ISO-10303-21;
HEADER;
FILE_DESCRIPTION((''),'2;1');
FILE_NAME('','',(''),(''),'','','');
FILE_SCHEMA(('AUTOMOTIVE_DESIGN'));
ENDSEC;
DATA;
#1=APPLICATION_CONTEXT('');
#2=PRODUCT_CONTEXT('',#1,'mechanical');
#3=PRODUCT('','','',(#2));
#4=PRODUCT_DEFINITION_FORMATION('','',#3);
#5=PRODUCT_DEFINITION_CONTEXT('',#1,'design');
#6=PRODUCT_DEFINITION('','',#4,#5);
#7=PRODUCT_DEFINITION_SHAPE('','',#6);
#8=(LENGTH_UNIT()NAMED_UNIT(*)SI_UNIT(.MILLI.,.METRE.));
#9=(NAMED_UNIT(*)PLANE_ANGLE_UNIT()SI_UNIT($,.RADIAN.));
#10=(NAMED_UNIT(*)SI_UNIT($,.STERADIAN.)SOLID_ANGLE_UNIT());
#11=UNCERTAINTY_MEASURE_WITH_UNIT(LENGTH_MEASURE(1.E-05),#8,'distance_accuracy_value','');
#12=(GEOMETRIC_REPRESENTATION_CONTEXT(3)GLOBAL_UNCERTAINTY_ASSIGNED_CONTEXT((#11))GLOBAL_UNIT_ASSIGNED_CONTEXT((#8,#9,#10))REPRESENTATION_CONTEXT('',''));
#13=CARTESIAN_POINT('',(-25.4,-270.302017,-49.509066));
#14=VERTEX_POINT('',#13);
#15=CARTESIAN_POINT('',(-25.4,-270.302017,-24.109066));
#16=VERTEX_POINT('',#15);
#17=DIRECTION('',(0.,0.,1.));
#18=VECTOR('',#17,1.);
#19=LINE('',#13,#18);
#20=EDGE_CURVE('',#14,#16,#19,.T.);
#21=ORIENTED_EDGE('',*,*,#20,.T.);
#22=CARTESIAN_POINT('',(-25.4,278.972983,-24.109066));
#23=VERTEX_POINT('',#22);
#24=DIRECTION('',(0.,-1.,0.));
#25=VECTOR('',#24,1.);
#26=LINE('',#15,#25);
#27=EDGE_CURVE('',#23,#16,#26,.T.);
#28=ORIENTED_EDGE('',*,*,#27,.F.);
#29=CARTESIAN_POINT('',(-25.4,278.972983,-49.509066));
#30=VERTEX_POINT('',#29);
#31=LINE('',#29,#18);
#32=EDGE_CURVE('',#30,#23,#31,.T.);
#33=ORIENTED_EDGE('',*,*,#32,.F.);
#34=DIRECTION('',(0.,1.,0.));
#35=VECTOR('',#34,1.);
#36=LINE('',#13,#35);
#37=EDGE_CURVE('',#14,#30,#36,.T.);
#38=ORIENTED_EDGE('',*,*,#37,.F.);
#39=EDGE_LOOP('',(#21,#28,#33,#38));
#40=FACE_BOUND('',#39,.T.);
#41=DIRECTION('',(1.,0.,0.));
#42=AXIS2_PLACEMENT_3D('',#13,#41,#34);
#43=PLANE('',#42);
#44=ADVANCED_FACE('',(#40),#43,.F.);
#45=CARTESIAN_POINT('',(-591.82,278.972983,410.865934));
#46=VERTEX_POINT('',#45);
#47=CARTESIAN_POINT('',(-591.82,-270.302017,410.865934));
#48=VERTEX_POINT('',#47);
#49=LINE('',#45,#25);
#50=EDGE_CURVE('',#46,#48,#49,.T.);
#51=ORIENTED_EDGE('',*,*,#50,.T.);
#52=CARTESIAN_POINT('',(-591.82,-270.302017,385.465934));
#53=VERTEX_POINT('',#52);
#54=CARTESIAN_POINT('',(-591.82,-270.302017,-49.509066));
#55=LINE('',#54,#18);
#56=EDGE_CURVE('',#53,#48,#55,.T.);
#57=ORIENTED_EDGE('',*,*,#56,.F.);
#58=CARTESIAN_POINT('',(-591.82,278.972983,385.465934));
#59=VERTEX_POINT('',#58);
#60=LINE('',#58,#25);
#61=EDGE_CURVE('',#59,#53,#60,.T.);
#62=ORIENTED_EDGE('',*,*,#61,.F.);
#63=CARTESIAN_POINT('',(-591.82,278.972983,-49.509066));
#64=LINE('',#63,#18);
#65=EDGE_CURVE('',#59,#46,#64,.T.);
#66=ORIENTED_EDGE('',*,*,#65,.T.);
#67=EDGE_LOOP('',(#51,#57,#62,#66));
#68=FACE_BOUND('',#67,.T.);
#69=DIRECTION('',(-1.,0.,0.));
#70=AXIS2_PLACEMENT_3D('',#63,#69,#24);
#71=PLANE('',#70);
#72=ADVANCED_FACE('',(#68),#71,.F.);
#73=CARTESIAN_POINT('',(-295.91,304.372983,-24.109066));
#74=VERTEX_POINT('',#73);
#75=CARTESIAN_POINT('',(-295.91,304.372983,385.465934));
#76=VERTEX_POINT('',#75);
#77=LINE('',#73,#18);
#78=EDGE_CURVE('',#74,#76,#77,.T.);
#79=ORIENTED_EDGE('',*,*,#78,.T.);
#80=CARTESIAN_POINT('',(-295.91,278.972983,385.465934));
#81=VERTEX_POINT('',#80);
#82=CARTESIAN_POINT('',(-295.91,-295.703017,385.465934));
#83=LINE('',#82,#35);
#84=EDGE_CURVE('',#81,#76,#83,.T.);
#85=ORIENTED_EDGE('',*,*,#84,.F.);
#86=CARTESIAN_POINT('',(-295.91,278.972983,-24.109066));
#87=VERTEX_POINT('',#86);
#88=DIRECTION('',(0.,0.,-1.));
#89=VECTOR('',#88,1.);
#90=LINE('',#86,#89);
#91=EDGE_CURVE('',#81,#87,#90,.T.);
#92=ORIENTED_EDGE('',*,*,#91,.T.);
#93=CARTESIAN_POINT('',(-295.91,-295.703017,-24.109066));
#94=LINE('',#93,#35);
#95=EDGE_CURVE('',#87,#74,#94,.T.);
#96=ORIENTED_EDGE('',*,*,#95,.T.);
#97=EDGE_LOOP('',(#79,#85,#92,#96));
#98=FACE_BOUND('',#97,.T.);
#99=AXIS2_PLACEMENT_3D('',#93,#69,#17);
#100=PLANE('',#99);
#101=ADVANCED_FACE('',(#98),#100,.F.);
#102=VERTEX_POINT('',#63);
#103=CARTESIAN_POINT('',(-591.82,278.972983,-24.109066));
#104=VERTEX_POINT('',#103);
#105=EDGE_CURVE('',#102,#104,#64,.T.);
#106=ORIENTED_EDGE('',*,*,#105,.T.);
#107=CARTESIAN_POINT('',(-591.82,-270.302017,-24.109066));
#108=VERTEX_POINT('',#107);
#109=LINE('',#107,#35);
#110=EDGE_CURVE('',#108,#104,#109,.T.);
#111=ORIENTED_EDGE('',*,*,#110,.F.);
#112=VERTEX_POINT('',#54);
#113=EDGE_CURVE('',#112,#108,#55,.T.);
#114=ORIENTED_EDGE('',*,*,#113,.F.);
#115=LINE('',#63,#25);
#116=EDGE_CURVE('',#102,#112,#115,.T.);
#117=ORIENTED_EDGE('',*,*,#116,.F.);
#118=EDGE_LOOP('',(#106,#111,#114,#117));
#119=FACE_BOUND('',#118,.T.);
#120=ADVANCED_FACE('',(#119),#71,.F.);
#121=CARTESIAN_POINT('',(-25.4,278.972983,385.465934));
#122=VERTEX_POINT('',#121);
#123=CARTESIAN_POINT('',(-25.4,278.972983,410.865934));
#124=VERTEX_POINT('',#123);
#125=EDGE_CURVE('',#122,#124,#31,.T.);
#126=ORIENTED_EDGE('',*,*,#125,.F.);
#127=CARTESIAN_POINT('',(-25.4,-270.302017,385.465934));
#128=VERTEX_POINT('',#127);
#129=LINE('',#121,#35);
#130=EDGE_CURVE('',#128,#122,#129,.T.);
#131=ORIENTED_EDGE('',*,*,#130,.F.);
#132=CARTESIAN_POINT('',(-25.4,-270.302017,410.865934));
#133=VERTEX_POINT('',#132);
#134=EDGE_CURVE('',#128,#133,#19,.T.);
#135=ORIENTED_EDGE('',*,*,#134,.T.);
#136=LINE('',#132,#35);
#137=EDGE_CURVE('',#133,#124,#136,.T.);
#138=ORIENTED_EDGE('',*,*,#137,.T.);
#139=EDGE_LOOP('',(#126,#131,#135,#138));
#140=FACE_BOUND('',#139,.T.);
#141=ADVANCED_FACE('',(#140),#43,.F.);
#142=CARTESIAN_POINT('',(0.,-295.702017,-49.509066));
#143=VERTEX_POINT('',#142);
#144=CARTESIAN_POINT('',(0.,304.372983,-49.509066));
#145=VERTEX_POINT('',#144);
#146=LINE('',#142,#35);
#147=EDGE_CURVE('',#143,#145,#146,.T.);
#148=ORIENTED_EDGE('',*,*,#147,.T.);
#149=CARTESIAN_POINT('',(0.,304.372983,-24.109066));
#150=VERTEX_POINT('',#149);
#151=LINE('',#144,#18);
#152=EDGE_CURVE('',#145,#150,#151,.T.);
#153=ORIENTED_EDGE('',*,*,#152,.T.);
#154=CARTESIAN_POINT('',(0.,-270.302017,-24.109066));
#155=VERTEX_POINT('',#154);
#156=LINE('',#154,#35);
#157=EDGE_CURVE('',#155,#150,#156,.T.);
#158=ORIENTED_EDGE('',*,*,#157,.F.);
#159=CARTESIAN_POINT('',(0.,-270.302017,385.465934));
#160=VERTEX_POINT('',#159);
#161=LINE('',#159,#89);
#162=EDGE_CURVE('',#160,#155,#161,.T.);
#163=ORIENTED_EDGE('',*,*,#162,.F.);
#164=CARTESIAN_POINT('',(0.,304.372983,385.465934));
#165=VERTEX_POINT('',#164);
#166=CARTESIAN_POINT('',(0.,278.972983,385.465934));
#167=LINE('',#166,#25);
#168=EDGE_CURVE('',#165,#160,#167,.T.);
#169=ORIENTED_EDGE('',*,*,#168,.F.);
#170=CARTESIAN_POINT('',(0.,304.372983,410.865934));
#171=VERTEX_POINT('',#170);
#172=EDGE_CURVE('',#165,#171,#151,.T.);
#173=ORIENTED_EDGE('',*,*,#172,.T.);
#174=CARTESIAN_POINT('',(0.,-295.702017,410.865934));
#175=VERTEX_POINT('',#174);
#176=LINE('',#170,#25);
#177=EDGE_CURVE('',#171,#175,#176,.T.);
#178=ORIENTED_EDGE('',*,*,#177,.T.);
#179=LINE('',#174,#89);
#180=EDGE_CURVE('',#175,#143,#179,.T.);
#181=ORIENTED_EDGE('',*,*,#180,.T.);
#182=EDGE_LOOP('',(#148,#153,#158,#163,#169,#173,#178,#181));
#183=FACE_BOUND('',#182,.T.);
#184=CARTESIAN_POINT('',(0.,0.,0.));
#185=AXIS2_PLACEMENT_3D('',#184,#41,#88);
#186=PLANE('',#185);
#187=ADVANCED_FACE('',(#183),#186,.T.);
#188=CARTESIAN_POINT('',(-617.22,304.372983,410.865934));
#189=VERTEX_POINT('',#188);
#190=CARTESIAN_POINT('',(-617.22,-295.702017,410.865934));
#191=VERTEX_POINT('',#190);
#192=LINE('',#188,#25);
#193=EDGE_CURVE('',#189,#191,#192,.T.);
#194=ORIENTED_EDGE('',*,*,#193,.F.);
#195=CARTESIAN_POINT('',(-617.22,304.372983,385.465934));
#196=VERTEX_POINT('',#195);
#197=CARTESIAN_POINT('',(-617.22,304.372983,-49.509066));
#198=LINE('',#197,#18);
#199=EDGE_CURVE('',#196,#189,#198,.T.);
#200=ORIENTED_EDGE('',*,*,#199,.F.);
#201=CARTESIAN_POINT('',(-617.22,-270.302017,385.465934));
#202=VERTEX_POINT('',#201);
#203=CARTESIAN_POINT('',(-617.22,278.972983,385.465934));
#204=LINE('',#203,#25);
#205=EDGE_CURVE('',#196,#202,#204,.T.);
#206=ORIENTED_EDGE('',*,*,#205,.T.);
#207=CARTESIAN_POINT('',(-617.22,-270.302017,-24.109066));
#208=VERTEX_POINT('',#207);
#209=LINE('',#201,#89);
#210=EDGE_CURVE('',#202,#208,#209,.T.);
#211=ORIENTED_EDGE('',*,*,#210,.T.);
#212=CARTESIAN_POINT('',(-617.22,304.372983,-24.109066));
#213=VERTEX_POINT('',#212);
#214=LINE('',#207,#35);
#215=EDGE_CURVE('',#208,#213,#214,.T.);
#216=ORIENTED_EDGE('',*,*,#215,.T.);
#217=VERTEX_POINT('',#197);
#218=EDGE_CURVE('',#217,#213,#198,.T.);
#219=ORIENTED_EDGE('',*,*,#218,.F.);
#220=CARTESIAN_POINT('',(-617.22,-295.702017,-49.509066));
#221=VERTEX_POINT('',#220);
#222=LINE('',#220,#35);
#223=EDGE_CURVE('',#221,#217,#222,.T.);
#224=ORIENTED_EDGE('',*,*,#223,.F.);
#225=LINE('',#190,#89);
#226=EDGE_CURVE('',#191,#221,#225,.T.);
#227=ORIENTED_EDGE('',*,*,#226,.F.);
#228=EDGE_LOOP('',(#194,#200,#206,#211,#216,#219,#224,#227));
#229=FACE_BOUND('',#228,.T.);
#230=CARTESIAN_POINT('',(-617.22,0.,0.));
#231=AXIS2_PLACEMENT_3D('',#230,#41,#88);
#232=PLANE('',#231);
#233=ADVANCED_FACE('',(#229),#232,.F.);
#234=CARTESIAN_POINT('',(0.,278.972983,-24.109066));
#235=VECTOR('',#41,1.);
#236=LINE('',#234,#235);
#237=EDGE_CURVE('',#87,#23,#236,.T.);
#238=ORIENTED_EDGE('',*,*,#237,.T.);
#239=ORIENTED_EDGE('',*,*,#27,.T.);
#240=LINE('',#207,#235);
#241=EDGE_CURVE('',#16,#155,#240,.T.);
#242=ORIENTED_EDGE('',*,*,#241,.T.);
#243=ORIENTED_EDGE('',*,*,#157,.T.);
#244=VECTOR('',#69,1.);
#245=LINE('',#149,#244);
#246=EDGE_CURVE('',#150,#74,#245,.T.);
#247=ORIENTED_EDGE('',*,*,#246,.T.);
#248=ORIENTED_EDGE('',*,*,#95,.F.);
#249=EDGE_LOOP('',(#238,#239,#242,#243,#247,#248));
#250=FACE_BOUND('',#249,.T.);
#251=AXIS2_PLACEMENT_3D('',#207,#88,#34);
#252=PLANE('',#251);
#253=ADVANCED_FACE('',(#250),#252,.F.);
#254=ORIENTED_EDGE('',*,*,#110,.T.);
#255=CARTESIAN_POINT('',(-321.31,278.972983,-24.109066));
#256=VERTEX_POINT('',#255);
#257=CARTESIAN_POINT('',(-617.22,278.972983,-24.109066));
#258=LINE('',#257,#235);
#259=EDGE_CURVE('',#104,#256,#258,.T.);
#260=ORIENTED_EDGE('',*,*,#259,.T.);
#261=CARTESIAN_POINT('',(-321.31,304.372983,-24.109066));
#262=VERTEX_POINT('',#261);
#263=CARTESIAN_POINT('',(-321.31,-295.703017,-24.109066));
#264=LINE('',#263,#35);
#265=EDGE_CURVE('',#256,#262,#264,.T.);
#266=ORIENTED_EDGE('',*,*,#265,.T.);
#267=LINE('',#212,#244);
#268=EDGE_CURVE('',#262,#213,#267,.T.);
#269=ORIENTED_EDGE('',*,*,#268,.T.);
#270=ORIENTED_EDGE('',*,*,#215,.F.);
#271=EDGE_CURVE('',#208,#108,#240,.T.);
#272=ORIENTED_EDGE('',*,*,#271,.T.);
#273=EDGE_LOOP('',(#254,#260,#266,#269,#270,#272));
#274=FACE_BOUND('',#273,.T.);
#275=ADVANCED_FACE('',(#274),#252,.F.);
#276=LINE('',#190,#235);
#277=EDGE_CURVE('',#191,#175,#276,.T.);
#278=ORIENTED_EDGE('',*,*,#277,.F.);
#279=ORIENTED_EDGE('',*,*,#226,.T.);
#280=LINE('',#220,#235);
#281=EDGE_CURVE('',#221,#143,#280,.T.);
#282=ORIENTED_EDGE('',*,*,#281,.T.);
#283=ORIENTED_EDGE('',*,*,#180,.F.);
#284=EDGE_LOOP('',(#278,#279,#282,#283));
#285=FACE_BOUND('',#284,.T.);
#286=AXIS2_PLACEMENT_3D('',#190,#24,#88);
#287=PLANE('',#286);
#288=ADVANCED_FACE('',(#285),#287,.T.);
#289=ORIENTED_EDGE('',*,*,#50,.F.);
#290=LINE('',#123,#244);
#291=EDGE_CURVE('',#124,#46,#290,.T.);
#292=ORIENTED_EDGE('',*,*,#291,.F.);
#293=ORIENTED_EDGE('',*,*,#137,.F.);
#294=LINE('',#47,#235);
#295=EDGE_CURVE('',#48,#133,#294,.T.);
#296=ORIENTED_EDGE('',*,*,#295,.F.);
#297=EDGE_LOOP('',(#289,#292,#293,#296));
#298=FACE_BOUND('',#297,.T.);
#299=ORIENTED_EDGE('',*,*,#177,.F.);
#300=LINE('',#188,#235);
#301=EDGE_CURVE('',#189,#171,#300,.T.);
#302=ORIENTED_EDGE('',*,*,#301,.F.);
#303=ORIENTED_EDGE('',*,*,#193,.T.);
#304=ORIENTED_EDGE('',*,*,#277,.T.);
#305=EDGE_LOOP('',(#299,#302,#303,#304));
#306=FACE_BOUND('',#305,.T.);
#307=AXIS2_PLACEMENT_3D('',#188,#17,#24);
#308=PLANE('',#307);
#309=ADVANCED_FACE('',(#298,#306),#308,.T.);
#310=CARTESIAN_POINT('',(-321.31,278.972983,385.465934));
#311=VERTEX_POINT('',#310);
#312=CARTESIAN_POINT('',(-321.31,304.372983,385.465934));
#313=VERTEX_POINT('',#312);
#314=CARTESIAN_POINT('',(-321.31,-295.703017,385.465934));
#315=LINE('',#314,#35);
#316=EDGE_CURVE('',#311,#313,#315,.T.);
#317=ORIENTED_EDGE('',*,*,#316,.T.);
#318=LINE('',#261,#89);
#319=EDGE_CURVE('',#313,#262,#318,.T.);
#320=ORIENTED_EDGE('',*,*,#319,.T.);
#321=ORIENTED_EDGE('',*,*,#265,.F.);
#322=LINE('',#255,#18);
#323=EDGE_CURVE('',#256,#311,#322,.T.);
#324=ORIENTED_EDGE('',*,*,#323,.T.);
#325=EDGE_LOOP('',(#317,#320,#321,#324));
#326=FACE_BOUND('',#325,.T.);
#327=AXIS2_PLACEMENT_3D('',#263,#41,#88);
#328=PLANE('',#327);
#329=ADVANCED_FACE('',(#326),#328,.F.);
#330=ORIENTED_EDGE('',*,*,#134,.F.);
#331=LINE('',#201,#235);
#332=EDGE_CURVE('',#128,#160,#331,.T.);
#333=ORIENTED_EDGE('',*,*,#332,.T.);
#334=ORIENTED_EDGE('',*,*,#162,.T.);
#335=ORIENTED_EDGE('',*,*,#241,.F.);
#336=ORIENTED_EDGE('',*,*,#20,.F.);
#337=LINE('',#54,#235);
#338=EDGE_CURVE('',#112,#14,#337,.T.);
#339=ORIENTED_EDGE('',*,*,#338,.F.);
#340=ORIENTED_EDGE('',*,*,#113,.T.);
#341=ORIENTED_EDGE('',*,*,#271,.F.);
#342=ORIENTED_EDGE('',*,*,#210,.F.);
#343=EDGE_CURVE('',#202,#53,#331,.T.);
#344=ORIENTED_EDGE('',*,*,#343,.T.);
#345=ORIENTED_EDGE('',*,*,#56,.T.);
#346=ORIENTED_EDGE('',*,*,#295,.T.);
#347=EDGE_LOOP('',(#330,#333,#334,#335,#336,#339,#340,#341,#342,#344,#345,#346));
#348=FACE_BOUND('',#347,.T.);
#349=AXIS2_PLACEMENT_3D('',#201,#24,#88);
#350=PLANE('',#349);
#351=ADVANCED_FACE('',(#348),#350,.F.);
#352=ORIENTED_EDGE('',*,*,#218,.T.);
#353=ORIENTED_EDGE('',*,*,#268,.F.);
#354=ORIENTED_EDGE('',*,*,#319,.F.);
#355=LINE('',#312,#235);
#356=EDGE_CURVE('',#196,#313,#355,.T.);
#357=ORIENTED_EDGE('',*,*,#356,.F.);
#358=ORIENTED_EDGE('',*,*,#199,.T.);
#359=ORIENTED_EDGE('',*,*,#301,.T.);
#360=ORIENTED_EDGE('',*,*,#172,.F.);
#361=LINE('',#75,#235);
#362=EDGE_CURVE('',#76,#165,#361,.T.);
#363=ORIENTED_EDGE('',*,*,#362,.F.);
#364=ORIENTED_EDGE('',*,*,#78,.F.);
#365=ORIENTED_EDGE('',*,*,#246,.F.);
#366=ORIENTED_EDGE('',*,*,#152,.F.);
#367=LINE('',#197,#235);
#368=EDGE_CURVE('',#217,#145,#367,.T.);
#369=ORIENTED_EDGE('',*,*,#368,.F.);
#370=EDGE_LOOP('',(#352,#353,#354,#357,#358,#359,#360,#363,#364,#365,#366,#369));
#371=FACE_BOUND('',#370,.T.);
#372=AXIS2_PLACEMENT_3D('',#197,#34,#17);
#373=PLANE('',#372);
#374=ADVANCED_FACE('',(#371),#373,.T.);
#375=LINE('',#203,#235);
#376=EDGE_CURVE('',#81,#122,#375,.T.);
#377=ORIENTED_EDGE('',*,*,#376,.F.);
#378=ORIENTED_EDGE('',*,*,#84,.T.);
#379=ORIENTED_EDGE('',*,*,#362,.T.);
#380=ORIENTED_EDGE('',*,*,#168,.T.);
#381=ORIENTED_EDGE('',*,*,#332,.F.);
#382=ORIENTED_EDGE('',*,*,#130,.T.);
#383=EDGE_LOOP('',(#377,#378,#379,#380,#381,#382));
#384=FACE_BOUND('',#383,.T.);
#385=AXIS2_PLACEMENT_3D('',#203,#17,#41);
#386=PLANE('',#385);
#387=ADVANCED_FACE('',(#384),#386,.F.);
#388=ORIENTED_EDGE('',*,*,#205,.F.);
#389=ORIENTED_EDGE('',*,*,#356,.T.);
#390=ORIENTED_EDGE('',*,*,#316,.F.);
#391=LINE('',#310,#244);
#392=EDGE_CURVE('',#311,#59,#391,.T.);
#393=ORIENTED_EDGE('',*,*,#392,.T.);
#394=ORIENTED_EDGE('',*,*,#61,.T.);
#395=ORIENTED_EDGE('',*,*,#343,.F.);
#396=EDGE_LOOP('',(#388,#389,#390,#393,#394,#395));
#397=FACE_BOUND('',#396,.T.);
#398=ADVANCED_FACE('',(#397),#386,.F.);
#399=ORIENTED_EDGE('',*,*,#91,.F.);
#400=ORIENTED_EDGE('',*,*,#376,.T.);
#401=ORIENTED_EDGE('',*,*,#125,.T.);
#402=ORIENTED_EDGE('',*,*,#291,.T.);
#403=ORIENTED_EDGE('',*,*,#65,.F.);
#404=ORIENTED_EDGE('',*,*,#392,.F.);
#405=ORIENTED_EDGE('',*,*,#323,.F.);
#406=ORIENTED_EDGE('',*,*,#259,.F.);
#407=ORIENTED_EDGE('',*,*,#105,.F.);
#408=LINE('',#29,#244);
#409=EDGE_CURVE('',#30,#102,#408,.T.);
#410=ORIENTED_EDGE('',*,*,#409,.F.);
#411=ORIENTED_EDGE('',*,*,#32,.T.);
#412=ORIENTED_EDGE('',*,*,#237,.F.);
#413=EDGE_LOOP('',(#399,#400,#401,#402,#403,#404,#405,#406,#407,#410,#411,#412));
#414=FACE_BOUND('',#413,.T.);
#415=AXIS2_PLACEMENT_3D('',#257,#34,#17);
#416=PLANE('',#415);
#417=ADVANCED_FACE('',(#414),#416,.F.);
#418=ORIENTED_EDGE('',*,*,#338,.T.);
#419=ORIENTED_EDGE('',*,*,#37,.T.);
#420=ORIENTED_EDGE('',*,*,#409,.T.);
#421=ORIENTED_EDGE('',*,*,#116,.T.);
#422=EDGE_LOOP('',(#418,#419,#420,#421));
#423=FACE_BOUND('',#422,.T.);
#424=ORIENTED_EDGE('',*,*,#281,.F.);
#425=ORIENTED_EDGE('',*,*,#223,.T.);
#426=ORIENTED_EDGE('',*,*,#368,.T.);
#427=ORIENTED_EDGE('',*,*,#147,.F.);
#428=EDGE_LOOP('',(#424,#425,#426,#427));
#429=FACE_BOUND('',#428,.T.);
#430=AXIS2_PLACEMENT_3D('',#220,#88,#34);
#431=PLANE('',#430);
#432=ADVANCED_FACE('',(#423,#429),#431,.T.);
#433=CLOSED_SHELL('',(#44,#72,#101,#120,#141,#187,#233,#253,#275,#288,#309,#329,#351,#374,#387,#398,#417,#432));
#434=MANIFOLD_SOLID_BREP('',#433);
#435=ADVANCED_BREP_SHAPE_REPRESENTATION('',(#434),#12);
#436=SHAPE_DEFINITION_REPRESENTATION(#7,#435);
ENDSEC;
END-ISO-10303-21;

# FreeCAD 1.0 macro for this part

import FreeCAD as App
import Part
import Sketcher

V = App.Vector
Q = App.Units.Quantity

doc = App.newDocument("Part")
body = doc.addObject("PartDesign::Body", "Body")

sketch1 = body.newObject("Sketcher::SketchObject", "Sketch")
sketch1.AttachmentSupport = (doc.getObject("YZ_Plane"), [""])
sketch1.MapMode = "FlatFace"
sketch1.addGeometry([
    Part.LineSegment(V(304, 411, 0), V(-296, 411, 0)),
    Part.LineSegment(V(-296, 411, 0), V(-296, -50, 0)),
    Part.LineSegment(V(-296, -50, 0), V(304, -50, 0)),
    Part.LineSegment(V(304, -50, 0), V(304, 411, 0)),
    Part.LineSegment(V(-270, -24, 0), V(-270, 385, 0)),
    Part.LineSegment(V(-270, 385, 0), V(279, 385, 0)),
    Part.LineSegment(V(279, 385, 0), V(279, -24, 0)),
    Part.LineSegment(V(279, -24, 0), V(-270, -24, 0)),
], False)
sketch1.addConstraint([
    Sketcher.Constraint("Coincident", 0, 2, 1, 1),
    Sketcher.Constraint("Coincident", 1, 2, 2, 1),
    Sketcher.Constraint("Coincident", 2, 2, 3, 1),
    Sketcher.Constraint("Coincident", 3, 2, 0, 1),
    Sketcher.Constraint("Coincident", 4, 2, 5, 1),
    Sketcher.Constraint("Coincident", 5, 2, 6, 1),
    Sketcher.Constraint("Coincident", 6, 2, 7, 1),
    Sketcher.Constraint("Coincident", 7, 2, 4, 1),
    Sketcher.Constraint("Horizontal", 0),
    Sketcher.Constraint("Vertical", 1),
    Sketcher.Constraint("Horizontal", 2),
    Sketcher.Constraint("Vertical", 3),
    Sketcher.Constraint("Vertical", 4),
    Sketcher.Constraint("Horizontal", 5),
    Sketcher.Constraint("Vertical", 6),
    Sketcher.Constraint("Horizontal", 7),
    Sketcher.Constraint("DistanceX", 0, 2, 4, 2, Q("1 in")),
    Sketcher.Constraint("DistanceY", 4, 2, 0, 2, Q("1 in")),
    Sketcher.Constraint("DistanceX", 5, 2, 3, 2, Q("1 in")),
    Sketcher.Constraint("DistanceY", 2, 2, 6, 2, Q("1 in")),
    Sketcher.Constraint("DistanceX", 0, 2, 0, 1, Q("23.625 in")),
    Sketcher.Constraint("DistanceY", 1, 2, 1, 1, Q("18.125 in")),
    Sketcher.Constraint("DistanceX", 0, 2, -1, 1, Q("295.702017 mm")),
    Sketcher.Constraint("DistanceY", -1, 1, 0, 2, Q("410.865934 mm")),
])
pad1 = body.newObject("PartDesign::Pad", "Pad")
pad1.Profile = sketch1
pad1.Length = Q("24.3 in")
pad1.Reversed = True

sketch2 = body.newObject("Sketcher::SketchObject", "Sketch001")
sketch2.AttachmentSupport = (doc.getObject("XY_Plane"), [""])
sketch2.MapMode = "FlatFace"
sketch2.AttachmentOffset = App.Placement(V(0, 0, 410.865934), App.Rotation())
sketch2.addGeometry([
    Part.LineSegment(V(-592, 279, 0), V(-592, -270, 0)),
    Part.LineSegment(V(-592, -270, 0), V(-25, -270, 0)),
    Part.LineSegment(V(-25, -270, 0), V(-25, 279, 0)),
    Part.LineSegment(V(-25, 279, 0), V(-592, 279, 0)),
], False)
sketch2.addConstraint([
    Sketcher.Constraint("Coincident", 0, 2, 1, 1),
    Sketcher.Constraint("Coincident", 1, 2, 2, 1),
    Sketcher.Constraint("Coincident", 2, 2, 3, 1),
    Sketcher.Constraint("Coincident", 3, 2, 0, 1),
    Sketcher.Constraint("Vertical", 0),
    Sketcher.Constraint("Horizontal", 1),
    Sketcher.Constraint("Vertical", 2),
    Sketcher.Constraint("Horizontal", 3),
    Sketcher.Constraint("DistanceX", 1, 1, 1, 2, Q("22.3 in")),
    Sketcher.Constraint("DistanceX", 1, 2, -1, 1, Q("1 in")),
    Sketcher.Constraint("DistanceY", 0, 2, 0, 1, Q("21.625 in")),
    Sketcher.Constraint("DistanceY", 0, 2, -1, 1, Q("270.302017 mm")),
])
pocket1 = body.newObject("PartDesign::Pocket", "Pocket")
pocket1.Profile = sketch2
pocket1.Type = "ThroughAll"

sketch3 = body.newObject("Sketcher::SketchObject", "Sketch002")
sketch3.AttachmentSupport = (doc.getObject("XZ_Plane"), [""])
sketch3.MapMode = "FlatFace"
sketch3.AttachmentOffset = App.Placement(V(0, 0, -304.372983), App.Rotation())
sketch3.addGeometry([
    Part.LineSegment(V(-617, -24, 0), V(-617, 385, 0)),
    Part.LineSegment(V(-617, 385, 0), V(-321, 385, 0)),
    Part.LineSegment(V(-321, 385, 0), V(-321, -24, 0)),
    Part.LineSegment(V(-321, -24, 0), V(-617, -24, 0)),
], False)
sketch3.addConstraint([
    Sketcher.Constraint("Coincident", 0, 2, 1, 1),
    Sketcher.Constraint("Coincident", 1, 2, 2, 1),
    Sketcher.Constraint("Coincident", 2, 2, 3, 1),
    Sketcher.Constraint("Coincident", 3, 2, 0, 1),
    Sketcher.Constraint("Vertical", 0),
    Sketcher.Constraint("Horizontal", 1),
    Sketcher.Constraint("Vertical", 2),
    Sketcher.Constraint("Horizontal", 3),
    Sketcher.Constraint("DistanceX", 1, 1, 1, 2, Q("11.65 in")),
    Sketcher.Constraint("DistanceX", 0, 2, -1, 1, Q("24.3 in")),
    Sketcher.Constraint("DistanceY", 0, 1, 0, 2, Q("16.125 in")),
    Sketcher.Constraint("DistanceY", -1, 1, 0, 2, Q("385.465934 mm")),
])
pocket2 = body.newObject("PartDesign::Pocket", "Pocket001")
pocket2.Profile = sketch3
pocket2.Type = "UpToFirst"
pocket2.Reversed = True

sketch4 = body.newObject("Sketcher::SketchObject", "Sketch003")
sketch4.AttachmentSupport = (doc.getObject("XZ_Plane"), [""])
sketch4.MapMode = "FlatFace"
sketch4.AttachmentOffset = App.Placement(V(0, 0, -304.372983), App.Rotation())
sketch4.addGeometry([
    Part.LineSegment(V(-296, -24, 0), V(-296, 385, 0)),
    Part.LineSegment(V(-296, 385, 0), V(0, 385, 0)),
    Part.LineSegment(V(0, 385, 0), V(0, -24, 0)),
    Part.LineSegment(V(0, -24, 0), V(-296, -24, 0)),
], False)
sketch4.addConstraint([
    Sketcher.Constraint("Coincident", 0, 2, 1, 1),
    Sketcher.Constraint("Coincident", 1, 2, 2, 1),
    Sketcher.Constraint("Coincident", 2, 2, 3, 1),
    Sketcher.Constraint("Coincident", 3, 2, 0, 1),
    Sketcher.Constraint("Vertical", 0),
    Sketcher.Constraint("Horizontal", 1),
    Sketcher.Constraint("Vertical", 2),
    Sketcher.Constraint("Horizontal", 3),
    Sketcher.Constraint("PointOnObject", 1, 2, -2),
    Sketcher.Constraint("DistanceX", 1, 1, 1, 2, Q("11.65 in")),
    Sketcher.Constraint("DistanceY", 0, 1, 0, 2, Q("16.125 in")),
    Sketcher.Constraint("DistanceY", -1, 1, 0, 2, Q("385.465934 mm")),
])
pocket3 = body.newObject("PartDesign::Pocket", "Pocket002")
pocket3.Profile = sketch4
pocket3.Type = "UpToFirst"
pocket3.Reversed = True

doc.recompute()
